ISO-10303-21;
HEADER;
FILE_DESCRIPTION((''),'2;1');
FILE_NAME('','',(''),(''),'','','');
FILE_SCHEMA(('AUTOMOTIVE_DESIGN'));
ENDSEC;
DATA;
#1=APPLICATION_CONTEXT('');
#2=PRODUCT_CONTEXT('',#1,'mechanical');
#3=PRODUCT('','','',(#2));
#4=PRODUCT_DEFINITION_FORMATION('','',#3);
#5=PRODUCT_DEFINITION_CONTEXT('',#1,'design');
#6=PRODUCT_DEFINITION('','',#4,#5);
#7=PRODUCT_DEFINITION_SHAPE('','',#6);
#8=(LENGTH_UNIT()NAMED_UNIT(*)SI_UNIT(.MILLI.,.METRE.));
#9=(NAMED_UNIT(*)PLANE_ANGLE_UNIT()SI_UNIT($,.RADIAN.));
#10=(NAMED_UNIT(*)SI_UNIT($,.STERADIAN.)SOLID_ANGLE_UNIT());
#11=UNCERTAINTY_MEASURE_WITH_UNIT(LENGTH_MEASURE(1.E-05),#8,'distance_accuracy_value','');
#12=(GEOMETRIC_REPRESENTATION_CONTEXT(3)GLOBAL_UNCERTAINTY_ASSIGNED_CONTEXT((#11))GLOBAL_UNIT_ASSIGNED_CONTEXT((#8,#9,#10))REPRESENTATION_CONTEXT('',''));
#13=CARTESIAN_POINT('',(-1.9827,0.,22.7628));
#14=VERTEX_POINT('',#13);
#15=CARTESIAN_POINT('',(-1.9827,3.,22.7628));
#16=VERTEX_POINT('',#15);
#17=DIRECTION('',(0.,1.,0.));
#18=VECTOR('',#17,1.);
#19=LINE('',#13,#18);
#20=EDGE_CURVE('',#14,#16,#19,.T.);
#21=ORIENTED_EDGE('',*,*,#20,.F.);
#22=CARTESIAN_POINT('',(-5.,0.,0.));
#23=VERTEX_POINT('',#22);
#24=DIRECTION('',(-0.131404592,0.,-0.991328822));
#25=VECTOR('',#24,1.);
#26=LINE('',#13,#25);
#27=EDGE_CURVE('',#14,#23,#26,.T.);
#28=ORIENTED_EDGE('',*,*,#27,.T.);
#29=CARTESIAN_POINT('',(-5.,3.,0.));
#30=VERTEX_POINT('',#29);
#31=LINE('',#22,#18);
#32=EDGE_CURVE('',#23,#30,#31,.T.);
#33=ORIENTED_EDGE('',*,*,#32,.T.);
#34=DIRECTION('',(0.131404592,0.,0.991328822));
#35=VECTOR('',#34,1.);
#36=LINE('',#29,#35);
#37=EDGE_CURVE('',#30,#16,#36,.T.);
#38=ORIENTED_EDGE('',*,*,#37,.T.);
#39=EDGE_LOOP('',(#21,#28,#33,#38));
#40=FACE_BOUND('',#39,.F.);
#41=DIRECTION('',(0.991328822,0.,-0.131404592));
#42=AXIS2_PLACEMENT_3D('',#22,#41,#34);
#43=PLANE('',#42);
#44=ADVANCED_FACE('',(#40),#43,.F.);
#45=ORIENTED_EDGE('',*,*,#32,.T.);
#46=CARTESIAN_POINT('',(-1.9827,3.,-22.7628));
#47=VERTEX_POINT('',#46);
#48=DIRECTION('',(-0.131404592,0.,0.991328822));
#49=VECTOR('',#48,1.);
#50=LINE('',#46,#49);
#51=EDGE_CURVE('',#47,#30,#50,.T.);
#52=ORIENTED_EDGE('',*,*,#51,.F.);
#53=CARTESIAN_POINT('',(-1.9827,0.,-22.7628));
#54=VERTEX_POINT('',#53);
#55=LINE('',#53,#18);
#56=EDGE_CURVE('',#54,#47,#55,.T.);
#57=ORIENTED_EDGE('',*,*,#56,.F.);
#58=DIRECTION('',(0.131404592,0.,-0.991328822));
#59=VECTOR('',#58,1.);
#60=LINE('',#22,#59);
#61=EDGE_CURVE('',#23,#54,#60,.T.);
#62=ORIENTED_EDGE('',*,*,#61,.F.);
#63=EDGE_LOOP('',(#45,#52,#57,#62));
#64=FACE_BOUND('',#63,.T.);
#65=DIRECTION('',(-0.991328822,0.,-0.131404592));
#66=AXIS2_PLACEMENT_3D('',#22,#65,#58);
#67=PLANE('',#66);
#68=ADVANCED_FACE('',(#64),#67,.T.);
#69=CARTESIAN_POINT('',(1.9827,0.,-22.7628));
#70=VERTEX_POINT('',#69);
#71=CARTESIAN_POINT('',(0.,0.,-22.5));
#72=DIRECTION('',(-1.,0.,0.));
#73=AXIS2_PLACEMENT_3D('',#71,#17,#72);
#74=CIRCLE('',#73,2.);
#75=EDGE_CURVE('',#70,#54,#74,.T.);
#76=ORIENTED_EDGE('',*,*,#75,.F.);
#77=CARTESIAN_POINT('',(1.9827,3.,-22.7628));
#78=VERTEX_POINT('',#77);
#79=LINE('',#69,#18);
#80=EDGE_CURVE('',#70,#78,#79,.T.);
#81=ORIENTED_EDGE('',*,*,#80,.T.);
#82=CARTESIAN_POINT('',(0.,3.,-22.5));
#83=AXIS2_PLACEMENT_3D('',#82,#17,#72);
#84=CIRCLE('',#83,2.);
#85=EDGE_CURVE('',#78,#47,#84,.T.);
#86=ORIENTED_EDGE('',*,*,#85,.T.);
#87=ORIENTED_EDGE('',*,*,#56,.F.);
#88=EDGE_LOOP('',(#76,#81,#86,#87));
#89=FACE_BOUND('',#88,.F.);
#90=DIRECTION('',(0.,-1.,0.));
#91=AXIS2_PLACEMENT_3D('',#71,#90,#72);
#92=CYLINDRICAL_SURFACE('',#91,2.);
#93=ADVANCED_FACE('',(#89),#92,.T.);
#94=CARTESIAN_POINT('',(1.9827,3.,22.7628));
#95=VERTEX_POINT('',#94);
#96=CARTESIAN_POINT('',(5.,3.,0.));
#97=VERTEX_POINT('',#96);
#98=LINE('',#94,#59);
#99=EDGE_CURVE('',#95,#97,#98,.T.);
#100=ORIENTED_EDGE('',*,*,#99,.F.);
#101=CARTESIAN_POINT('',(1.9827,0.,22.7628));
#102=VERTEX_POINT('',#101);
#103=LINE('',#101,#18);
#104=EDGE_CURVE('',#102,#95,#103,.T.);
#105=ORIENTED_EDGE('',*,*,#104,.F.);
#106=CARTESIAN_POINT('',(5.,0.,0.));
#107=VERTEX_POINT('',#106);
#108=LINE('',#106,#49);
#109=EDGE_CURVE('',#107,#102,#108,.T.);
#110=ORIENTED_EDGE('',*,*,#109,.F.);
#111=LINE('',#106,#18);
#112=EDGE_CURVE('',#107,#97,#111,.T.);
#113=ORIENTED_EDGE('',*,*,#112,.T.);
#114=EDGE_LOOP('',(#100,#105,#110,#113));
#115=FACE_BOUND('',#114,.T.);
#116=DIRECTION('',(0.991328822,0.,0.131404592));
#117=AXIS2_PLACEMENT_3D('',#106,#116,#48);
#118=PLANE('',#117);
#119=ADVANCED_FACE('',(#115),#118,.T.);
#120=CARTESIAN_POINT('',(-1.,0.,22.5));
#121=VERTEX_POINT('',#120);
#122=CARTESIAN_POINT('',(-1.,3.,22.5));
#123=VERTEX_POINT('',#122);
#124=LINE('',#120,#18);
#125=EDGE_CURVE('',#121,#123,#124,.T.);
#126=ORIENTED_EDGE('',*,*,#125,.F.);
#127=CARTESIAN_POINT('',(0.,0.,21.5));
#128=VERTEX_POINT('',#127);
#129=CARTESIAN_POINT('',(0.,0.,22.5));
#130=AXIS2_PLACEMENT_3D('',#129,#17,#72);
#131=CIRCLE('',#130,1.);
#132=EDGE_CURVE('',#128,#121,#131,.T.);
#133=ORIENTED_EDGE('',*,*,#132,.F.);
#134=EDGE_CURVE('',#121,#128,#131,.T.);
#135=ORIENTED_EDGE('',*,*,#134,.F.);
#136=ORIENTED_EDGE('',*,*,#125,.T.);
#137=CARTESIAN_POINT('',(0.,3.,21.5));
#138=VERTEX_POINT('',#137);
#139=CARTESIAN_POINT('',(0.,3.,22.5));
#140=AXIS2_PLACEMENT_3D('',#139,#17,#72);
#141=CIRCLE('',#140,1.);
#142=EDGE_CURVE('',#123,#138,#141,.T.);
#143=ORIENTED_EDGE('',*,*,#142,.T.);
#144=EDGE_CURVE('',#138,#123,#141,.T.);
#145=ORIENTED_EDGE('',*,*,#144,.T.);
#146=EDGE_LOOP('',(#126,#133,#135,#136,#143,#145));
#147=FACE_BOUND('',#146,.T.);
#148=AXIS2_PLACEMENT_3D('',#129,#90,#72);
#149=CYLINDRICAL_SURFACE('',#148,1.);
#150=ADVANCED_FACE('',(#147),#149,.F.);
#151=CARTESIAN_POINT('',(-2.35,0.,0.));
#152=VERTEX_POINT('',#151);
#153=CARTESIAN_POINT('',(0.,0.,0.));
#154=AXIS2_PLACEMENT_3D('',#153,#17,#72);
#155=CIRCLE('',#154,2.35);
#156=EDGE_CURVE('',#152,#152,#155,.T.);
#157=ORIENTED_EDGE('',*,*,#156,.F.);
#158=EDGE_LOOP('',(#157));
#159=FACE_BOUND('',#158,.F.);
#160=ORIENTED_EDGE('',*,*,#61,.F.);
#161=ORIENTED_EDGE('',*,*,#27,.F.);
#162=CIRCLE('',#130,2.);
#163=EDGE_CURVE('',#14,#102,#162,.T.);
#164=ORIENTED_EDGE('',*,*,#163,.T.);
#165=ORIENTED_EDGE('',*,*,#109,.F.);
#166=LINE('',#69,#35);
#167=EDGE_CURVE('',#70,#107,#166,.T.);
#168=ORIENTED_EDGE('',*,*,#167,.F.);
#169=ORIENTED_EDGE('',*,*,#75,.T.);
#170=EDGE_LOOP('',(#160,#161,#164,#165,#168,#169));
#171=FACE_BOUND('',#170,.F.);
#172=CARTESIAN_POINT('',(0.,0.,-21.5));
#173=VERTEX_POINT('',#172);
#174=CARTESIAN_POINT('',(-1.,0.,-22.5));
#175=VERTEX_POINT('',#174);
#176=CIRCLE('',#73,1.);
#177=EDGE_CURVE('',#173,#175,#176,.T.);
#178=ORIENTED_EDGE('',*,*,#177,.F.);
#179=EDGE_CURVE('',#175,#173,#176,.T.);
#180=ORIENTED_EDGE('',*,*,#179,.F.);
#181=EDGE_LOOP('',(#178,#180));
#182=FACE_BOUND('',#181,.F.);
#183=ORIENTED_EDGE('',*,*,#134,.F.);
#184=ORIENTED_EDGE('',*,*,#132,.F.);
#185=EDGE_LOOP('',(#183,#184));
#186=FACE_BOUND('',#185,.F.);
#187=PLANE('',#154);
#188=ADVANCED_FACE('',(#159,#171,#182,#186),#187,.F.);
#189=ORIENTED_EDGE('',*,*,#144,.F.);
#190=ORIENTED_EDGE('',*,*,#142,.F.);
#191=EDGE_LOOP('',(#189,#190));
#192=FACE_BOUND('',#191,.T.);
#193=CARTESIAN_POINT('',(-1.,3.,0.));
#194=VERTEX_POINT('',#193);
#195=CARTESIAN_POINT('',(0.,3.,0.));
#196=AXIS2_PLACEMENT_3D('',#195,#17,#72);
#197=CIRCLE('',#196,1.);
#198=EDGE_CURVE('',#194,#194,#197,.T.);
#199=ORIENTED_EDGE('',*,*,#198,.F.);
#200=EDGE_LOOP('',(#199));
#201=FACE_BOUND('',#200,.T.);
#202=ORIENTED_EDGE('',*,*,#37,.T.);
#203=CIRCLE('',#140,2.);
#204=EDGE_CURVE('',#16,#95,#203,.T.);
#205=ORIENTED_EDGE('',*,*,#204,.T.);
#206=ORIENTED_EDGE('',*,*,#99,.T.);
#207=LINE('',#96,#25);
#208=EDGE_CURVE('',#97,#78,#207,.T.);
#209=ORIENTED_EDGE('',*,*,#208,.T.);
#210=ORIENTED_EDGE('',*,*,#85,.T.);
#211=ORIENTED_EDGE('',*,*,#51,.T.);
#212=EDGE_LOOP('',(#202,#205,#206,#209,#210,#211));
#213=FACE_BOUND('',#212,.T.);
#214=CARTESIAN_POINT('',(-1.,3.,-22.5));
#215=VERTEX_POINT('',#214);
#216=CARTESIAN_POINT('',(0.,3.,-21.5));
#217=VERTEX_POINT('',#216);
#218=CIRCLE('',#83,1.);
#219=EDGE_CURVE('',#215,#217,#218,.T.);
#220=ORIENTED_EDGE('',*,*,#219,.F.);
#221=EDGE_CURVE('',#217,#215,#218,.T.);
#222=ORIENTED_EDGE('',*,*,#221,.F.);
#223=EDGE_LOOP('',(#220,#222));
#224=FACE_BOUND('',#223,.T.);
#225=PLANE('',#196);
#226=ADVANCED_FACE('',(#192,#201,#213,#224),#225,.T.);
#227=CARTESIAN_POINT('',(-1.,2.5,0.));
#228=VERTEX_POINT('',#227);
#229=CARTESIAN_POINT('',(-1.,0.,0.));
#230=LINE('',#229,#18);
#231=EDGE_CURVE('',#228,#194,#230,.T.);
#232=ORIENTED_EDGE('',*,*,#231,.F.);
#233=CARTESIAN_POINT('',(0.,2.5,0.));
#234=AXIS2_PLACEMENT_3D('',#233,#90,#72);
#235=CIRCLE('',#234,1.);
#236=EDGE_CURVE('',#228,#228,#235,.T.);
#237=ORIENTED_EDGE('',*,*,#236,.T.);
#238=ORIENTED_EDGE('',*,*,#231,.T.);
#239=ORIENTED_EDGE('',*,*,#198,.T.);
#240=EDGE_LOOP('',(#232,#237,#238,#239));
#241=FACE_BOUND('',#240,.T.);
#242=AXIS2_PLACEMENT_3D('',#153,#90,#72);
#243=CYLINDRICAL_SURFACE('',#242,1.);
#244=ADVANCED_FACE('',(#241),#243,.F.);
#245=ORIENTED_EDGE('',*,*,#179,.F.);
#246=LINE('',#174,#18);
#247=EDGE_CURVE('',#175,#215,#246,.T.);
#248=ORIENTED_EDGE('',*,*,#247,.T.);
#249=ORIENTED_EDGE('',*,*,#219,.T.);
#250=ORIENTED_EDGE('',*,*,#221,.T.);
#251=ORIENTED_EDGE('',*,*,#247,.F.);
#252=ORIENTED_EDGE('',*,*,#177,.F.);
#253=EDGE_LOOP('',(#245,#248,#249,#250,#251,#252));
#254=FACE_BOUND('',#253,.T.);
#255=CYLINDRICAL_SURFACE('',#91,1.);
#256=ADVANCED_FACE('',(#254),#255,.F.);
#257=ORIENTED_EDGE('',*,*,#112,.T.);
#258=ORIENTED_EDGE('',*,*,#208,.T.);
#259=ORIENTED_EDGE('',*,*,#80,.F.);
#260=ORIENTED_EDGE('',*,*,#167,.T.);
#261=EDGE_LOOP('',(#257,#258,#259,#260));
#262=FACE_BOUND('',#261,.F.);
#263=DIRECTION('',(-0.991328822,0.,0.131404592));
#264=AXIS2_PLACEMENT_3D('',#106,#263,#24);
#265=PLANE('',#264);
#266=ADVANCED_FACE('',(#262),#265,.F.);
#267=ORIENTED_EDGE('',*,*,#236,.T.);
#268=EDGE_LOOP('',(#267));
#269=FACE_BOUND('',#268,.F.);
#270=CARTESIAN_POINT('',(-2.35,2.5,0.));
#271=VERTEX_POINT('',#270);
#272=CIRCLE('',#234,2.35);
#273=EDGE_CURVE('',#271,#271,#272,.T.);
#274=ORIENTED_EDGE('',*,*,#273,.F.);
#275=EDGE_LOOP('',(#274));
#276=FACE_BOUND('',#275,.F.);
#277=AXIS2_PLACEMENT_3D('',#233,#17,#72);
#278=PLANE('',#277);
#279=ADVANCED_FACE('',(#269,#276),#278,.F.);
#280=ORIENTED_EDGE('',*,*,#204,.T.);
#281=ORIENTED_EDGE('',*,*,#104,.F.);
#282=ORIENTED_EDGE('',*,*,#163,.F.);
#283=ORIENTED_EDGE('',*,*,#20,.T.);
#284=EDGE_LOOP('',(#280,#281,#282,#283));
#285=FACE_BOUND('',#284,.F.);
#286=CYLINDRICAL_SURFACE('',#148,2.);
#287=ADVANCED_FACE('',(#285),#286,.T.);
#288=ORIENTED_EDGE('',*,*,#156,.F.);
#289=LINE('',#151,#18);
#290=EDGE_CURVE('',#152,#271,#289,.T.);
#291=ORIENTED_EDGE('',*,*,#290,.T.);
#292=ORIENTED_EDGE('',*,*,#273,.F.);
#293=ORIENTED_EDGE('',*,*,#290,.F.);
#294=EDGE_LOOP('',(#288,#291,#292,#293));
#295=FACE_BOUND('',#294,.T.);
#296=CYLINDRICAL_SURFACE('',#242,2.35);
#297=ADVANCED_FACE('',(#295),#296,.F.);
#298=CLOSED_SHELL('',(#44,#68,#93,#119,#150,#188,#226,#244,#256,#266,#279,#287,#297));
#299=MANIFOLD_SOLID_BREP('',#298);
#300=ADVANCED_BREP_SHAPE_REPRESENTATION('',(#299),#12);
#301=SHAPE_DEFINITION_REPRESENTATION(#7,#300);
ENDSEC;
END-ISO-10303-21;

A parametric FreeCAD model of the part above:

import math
import FreeCAD as App
import Part
import Sketcher

V = App.Vector
Q = App.Units.Quantity

doc = App.newDocument("Part")
body = doc.addObject("PartDesign::Body", "Body")

sketch1 = body.newObject("Sketcher::SketchObject", "Sketch")
sketch1.AttachmentSupport = (doc.getObject("XZ_Plane"), [""])
sketch1.MapMode = "FlatFace"
sketch1.addGeometry([
    Part.LineSegment(V(-5, 0, 0), V(-2, 22.8, 0)),
    Part.ArcOfCircle(Part.Circle(V(0, 22.5, 0), V(0, 0, 1), 2), math.radians(8), math.radians(172)),
    Part.LineSegment(V(2, 22.8, 0), V(5, 0, 0)),
    Part.LineSegment(V(5, 0, 0), V(2, -22.8, 0)),
    Part.ArcOfCircle(Part.Circle(V(0, -22.5, 0), V(0, 0, 1), 2), math.radians(-172), math.radians(-8)),
    Part.LineSegment(V(-2, -22.8, 0), V(-5, 0, 0)),
    Part.Circle(V(0, 0, 0), V(0, 0, 1), 1),
    Part.Circle(V(0, 22.5, 0), V(0, 0, 1), 1),
    Part.Circle(V(0, -22.5, 0), V(0, 0, 1), 1),
], False)
sketch1.addConstraint([
    Sketcher.Constraint("Tangent", 0, 2, 1, 2),
    Sketcher.Constraint("Tangent", 1, 1, 2, 1),
    Sketcher.Constraint("Coincident", 2, 2, 3, 1),
    Sketcher.Constraint("Tangent", 3, 2, 4, 2),
    Sketcher.Constraint("Tangent", 4, 1, 5, 1),
    Sketcher.Constraint("Coincident", 5, 2, 0, 1),
    Sketcher.Constraint("Coincident", 6, 3, -1, 1),
    Sketcher.Constraint("Coincident", 7, 3, 1, 3),
    Sketcher.Constraint("Coincident", 8, 3, 4, 3),
    Sketcher.Constraint("Equal", 1, 4),
    Sketcher.Constraint("Equal", 6, 7),
    Sketcher.Constraint("Equal", 7, 8),
    Sketcher.Constraint("Symmetric", 1, 3, 4, 3, -1, 1),
    Sketcher.Constraint("Symmetric", 2, 2, 5, 2, -1, 1),
    Sketcher.Constraint("Symmetric", 0, 2, 1, 1, -2),
    Sketcher.Constraint("Diameter", 6, Q("2 mm")),
    Sketcher.Constraint("Radius", 1, Q("2 mm")),
    Sketcher.Constraint("DistanceX", 5, 2, 2, 2, Q("10 mm")),
    Sketcher.Constraint("DistanceY", -1, 1, 1, 3, Q("22.5 mm")),
])
pad1 = body.newObject("PartDesign::Pad", "Pad")
pad1.Profile = sketch1
pad1.Length = 3
pad1.Reversed = True

sketch2 = body.newObject("Sketcher::SketchObject", "Sketch001")
sketch2.AttachmentSupport = (doc.getObject("XZ_Plane"), [""])
sketch2.MapMode = "FlatFace"
sketch2.addGeometry([
    Part.Circle(V(0, 0, 0), V(0, 0, 1), 2.4),
    Part.Circle(V(0, 0, 0), V(0, 0, 1), 1),
], False)
sketch2.addConstraint([
    Sketcher.Constraint("Coincident", 0, 3, -1, 1),
    Sketcher.Constraint("Coincident", 1, 3, -1, 1),
    Sketcher.Constraint("Diameter", 1, Q("2 mm")),
    Sketcher.Constraint("Diameter", 0, Q("4.7 mm")),
])
pocket1 = body.newObject("PartDesign::Pocket", "Pocket")
pocket1.Profile = sketch2
pocket1.Length = 2.5

doc.recompute()
